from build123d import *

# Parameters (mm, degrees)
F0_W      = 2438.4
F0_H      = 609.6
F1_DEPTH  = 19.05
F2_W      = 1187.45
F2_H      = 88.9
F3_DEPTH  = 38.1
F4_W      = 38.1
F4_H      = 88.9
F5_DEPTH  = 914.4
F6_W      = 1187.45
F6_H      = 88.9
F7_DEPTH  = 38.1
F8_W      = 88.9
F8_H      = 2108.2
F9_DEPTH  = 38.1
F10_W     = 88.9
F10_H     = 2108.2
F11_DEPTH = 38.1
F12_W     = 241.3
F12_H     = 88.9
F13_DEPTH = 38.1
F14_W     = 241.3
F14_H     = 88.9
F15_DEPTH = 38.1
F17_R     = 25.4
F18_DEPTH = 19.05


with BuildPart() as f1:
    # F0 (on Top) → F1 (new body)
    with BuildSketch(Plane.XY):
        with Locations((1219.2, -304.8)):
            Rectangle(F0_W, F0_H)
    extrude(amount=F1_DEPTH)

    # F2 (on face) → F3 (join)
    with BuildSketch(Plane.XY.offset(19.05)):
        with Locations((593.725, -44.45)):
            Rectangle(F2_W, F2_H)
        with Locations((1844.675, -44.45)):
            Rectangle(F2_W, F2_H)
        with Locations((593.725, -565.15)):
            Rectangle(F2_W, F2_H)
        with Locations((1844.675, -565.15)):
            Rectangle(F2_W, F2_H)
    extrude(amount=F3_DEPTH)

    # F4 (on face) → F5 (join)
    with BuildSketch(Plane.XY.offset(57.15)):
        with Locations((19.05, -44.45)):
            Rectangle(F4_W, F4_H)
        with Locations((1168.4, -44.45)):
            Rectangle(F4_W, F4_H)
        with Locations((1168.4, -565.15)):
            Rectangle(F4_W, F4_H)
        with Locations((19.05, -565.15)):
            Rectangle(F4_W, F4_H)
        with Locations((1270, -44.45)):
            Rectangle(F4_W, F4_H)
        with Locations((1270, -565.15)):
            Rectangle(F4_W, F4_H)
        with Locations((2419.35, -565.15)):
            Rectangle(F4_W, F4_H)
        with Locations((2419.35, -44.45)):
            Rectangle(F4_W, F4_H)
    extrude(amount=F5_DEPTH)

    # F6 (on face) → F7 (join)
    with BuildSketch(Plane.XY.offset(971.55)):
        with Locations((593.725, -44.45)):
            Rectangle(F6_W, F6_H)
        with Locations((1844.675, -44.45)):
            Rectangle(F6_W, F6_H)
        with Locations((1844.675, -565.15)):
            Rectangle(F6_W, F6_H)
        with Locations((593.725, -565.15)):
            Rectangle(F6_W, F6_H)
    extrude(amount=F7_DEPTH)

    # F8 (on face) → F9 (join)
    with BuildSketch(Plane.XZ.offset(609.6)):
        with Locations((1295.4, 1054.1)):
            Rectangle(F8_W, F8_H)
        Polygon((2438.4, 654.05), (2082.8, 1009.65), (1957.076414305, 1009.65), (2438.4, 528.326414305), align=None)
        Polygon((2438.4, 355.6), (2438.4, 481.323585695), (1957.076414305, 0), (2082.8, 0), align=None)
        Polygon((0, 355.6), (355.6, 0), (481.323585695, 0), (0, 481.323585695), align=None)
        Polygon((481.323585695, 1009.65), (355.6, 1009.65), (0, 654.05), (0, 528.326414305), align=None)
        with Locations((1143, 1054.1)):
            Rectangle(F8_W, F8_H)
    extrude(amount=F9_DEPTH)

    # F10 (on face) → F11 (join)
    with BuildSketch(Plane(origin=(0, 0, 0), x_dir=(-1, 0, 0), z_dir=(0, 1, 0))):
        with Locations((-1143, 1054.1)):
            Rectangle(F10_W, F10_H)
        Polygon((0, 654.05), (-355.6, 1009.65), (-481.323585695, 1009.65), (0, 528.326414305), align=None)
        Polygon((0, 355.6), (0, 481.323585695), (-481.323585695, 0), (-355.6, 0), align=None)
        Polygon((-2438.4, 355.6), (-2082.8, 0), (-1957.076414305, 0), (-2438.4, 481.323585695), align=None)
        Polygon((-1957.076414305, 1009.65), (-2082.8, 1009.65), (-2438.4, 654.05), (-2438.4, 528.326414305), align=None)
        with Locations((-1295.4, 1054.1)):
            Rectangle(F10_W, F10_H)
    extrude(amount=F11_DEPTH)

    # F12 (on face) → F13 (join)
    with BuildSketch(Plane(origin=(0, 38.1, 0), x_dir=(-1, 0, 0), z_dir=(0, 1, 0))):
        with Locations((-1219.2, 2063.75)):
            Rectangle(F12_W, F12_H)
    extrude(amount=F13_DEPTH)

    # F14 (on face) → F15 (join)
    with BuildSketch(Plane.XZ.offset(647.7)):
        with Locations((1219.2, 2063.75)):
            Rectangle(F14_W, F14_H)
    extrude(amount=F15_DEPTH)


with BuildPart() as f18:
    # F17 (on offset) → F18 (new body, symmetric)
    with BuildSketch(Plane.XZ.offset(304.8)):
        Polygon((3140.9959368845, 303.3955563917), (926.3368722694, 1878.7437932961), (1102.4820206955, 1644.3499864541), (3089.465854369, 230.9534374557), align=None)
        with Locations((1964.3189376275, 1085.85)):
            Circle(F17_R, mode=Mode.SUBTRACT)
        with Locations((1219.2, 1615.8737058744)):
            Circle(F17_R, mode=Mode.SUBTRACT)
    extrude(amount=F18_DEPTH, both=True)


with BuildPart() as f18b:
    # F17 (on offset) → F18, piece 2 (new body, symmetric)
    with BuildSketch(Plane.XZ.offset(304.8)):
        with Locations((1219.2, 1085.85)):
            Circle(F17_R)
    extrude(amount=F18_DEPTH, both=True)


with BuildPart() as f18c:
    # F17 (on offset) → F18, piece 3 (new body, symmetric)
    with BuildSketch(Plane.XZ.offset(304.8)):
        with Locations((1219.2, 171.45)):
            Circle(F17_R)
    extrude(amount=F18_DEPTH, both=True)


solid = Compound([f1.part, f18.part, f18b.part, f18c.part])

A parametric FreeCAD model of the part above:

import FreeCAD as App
import Part
import Sketcher

V = App.Vector
Q = App.Units.Quantity

doc = App.newDocument("Part")
params = doc.addObject("Spreadsheet::Sheet", "Params")
for row, (alias, value) in enumerate([
    ("sketch1_width", "96 in"),
    ("sketch1_height", "24 in"),
    ("pad1_length", "0.75 in"),
    ("sketch2_height", "3.5 in"),
    ("sketch2_width", "46.75 in"),
    ("pad2_length", "1.5 in"),
    ("sketch3_width", "1.5 in"),
    ("sketch3_height", "3.5 in"),
    ("pad3_length", "36 in"),
    ("sketch4_height", "3.5 in"),
    ("sketch4_width", "46.75 in"),
    ("pad4_length", "1.5 in"),
    ("sketch5_height", "83 in"),
    ("sketch5_width", "3.5 in"),
    ("pad5_length", "1.5 in"),
    ("sketch6_height", "83 in"),
    ("sketch6_width", "3.5 in"),
    ("pad6_length", "1.5 in"),
    ("sketch7_width", "9.5 in"),
    ("sketch7_height", "3.5 in"),
    ("pad7_length", "1.5 in"),
    ("sketch8_width", "9.5 in"),
    ("sketch8_height", "3.5 in"),
    ("pad8_length", "1.5 in"),
    ("sketch9_diameter", "2 in"),
    ("sketch9_length", "107 in"),
    ("sketch9_length2", "96 in"),
    ("sketch9_length3", "3.5 in"),
    ("pad9_length", "1.5 in"),
    ("sketch10_diameter", "2 in"),
    ("pad10_length", "1.5 in"),
    ("sketch11_diameter", "2 in"),
    ("pad11_length", "1.5 in"),
], start=1):
    params.set(f"A{row}", alias)
    params.set(f"B{row}", "=" + value)
    params.setAlias(f"B{row}", alias)

body = doc.addObject("PartDesign::Body", "Body")

# Sketch on XY plane
sketch1 = body.newObject("Sketcher::SketchObject", "Sketch")
sketch1.AttachmentSupport = (doc.getObject("XY_Plane"), [""])
sketch1.MapMode = "FlatFace"
sketch1.addGeometry(Part.LineSegment(V(0, 0, 0), V(0, -610, 0)), False)
sketch1.addGeometry(Part.LineSegment(V(0, -610, 0), V(2438, -610, 0)), False)
sketch1.addGeometry(Part.LineSegment(V(2438, -610, 0), V(2438, 0, 0)), False)
sketch1.addGeometry(Part.LineSegment(V(2438, 0, 0), V(0, 0, 0)), False)
sketch1.addConstraint(Sketcher.Constraint("Coincident", 0, 2, 1, 1))
sketch1.addConstraint(Sketcher.Constraint("Coincident", 1, 2, 2, 1))
sketch1.addConstraint(Sketcher.Constraint("Coincident", 2, 2, 3, 1))
sketch1.addConstraint(Sketcher.Constraint("Coincident", 3, 2, 0, 1))
sketch1.addConstraint(Sketcher.Constraint("Vertical", 0))
sketch1.addConstraint(Sketcher.Constraint("Horizontal", 1))
sketch1.addConstraint(Sketcher.Constraint("Vertical", 2))
sketch1.addConstraint(Sketcher.Constraint("Horizontal", 3))
sketch1.addConstraint(Sketcher.Constraint("Coincident", 3, 2, -1, 1))
sketch1.addConstraint(Sketcher.Constraint("DistanceX", 1, 1, 1, 2, Q("96 in")))
sketch1.addConstraint(Sketcher.Constraint("DistanceY", 0, 2, 0, 1, Q("24 in")))
sketch1.setExpression("Constraints[9]", "Params.sketch1_width")
sketch1.setExpression("Constraints[10]", "Params.sketch1_height")
pad1 = body.newObject("PartDesign::Pad", "Pad")
pad1.Profile = sketch1
pad1.setExpression("Length", "Params.pad1_length")

# Sketch on XY plane
sketch2 = body.newObject("Sketcher::SketchObject", "Sketch001")
sketch2.AttachmentSupport = (doc.getObject("XY_Plane"), [""])
sketch2.MapMode = "FlatFace"
sketch2.AttachmentOffset = App.Placement(V(0, 0, 0.75 * 25.4), App.Rotation())
sketch2.addGeometry(Part.LineSegment(V(0, 0, 0), V(0, -89, 0)), False)
sketch2.addGeometry(Part.LineSegment(V(0, -89, 0), V(1187, -89, 0)), False)
sketch2.addGeometry(Part.LineSegment(V(1187, -89, 0), V(1187, 0, 0)), False)
sketch2.addGeometry(Part.LineSegment(V(1187, 0, 0), V(0, 0, 0)), False)
sketch2.addGeometry(Part.LineSegment(V(1251, 0, 0), V(1251, -89, 0)), False)
sketch2.addGeometry(Part.LineSegment(V(1251, -89, 0), V(2438, -89, 0)), False)
sketch2.addGeometry(Part.LineSegment(V(2438, -89, 0), V(2438, 0, 0)), False)
sketch2.addGeometry(Part.LineSegment(V(2438, 0, 0), V(1251, 0, 0)), False)
sketch2.addGeometry(Part.LineSegment(V(0, -521, 0), V(0, -610, 0)), False)
sketch2.addGeometry(Part.LineSegment(V(0, -610, 0), V(1187, -610, 0)), False)
sketch2.addGeometry(Part.LineSegment(V(1187, -610, 0), V(1187, -521, 0)), False)
sketch2.addGeometry(Part.LineSegment(V(1187, -521, 0), V(0, -521, 0)), False)
sketch2.addGeometry(Part.LineSegment(V(1251, -521, 0), V(1251, -610, 0)), False)
sketch2.addGeometry(Part.LineSegment(V(1251, -610, 0), V(2438, -610, 0)), False)
sketch2.addGeometry(Part.LineSegment(V(2438, -610, 0), V(2438, -521, 0)), False)
sketch2.addGeometry(Part.LineSegment(V(2438, -521, 0), V(1251, -521, 0)), False)
sketch2.addConstraint(Sketcher.Constraint("Coincident", 0, 2, 1, 1))
sketch2.addConstraint(Sketcher.Constraint("Coincident", 1, 2, 2, 1))
sketch2.addConstraint(Sketcher.Constraint("Coincident", 2, 2, 3, 1))
sketch2.addConstraint(Sketcher.Constraint("Coincident", 3, 2, 0, 1))
sketch2.addConstraint(Sketcher.Constraint("Coincident", 4, 2, 5, 1))
sketch2.addConstraint(Sketcher.Constraint("Coincident", 5, 2, 6, 1))
sketch2.addConstraint(Sketcher.Constraint("Coincident", 6, 2, 7, 1))
sketch2.addConstraint(Sketcher.Constraint("Coincident", 7, 2, 4, 1))
sketch2.addConstraint(Sketcher.Constraint("Coincident", 8, 2, 9, 1))
sketch2.addConstraint(Sketcher.Constraint("Coincident", 9, 2, 10, 1))
sketch2.addConstraint(Sketcher.Constraint("Coincident", 10, 2, 11, 1))
sketch2.addConstraint(Sketcher.Constraint("Coincident", 11, 2, 8, 1))
sketch2.addConstraint(Sketcher.Constraint("Coincident", 12, 2, 13, 1))
sketch2.addConstraint(Sketcher.Constraint("Coincident", 13, 2, 14, 1))
sketch2.addConstraint(Sketcher.Constraint("Coincident", 14, 2, 15, 1))
sketch2.addConstraint(Sketcher.Constraint("Coincident", 15, 2, 12, 1))
sketch2.addConstraint(Sketcher.Constraint("Vertical", 0))
sketch2.addConstraint(Sketcher.Constraint("Horizontal", 1))
sketch2.addConstraint(Sketcher.Constraint("Vertical", 2))
sketch2.addConstraint(Sketcher.Constraint("Horizontal", 3))
sketch2.addConstraint(Sketcher.Constraint("Vertical", 4))
sketch2.addConstraint(Sketcher.Constraint("Horizontal", 5))
sketch2.addConstraint(Sketcher.Constraint("Vertical", 6))
sketch2.addConstraint(Sketcher.Constraint("Horizontal", 7))
sketch2.addConstraint(Sketcher.Constraint("Vertical", 8))
sketch2.addConstraint(Sketcher.Constraint("Horizontal", 9))
sketch2.addConstraint(Sketcher.Constraint("Vertical", 10))
sketch2.addConstraint(Sketcher.Constraint("Horizontal", 11))
sketch2.addConstraint(Sketcher.Constraint("Vertical", 12))
sketch2.addConstraint(Sketcher.Constraint("Horizontal", 13))
sketch2.addConstraint(Sketcher.Constraint("Vertical", 14))
sketch2.addConstraint(Sketcher.Constraint("Horizontal", 15))
sketch2.addConstraint(Sketcher.Constraint("Coincident", 3, 2, -1, 1))
sketch2.addConstraint(Sketcher.Constraint("PointOnObject", 6, 2, -1))
sketch2.addConstraint(Sketcher.Constraint("PointOnObject", 8, 2, -2))
sketch2.addConstraint(Sketcher.Constraint("Horizontal", 1, 2, 4, 2))
sketch2.addConstraint(Sketcher.Constraint("Horizontal", 9, 2, 12, 2))
sketch2.addConstraint(Sketcher.Constraint("Horizontal", 11, 2, 14, 2))
sketch2.addConstraint(Sketcher.Constraint("Vertical", 2, 2, 9, 2))
sketch2.addConstraint(Sketcher.Constraint("Vertical", 7, 2, 12, 2))
sketch2.addConstraint(Sketcher.Constraint("Vertical", 6, 2, 13, 2))
sketch2.addConstraint(Sketcher.Constraint("Equal", 3, 5))
sketch2.addConstraint(Sketcher.Constraint("Equal", 6, 8))
sketch2.addConstraint(Sketcher.Constraint("DistanceY", 0, 2, 0, 1, Q("3.5 in")))
sketch2.addConstraint(Sketcher.Constraint("DistanceX", -1, 1, 5, 2, Q("96 in")))
sketch2.addConstraint(Sketcher.Constraint("DistanceY", 8, 2, -1, 1, Q("24 in")))
sketch2.addConstraint(Sketcher.Constraint("DistanceX", 1, 1, 1, 2, Q("46.75 in")))
sketch2.setExpression("Constraints[43]", "Params.sketch2_height")
sketch2.setExpression("Constraints[46]", "Params.sketch2_width")
pad2 = body.newObject("PartDesign::Pad", "Pad001")
pad2.Profile = sketch2
pad2.setExpression("Length", "Params.pad2_length")

# Sketch on XY plane
sketch3 = body.newObject("Sketcher::SketchObject", "Sketch002")
sketch3.AttachmentSupport = (doc.getObject("XY_Plane"), [""])
sketch3.MapMode = "FlatFace"
sketch3.AttachmentOffset = App.Placement(V(0, 0, 2.25 * 25.4), App.Rotation())
sketch3.addGeometry(Part.LineSegment(V(0, 0, 0), V(0, -89, 0)), False)
sketch3.addGeometry(Part.LineSegment(V(0, -89, 0), V(38, -89, 0)), False)
sketch3.addGeometry(Part.LineSegment(V(38, -89, 0), V(38, 0, 0)), False)
sketch3.addGeometry(Part.LineSegment(V(38, 0, 0), V(0, 0, 0)), False)
sketch3.addGeometry(Part.LineSegment(V(1149, 0, 0), V(1149, -89, 0)), False)
sketch3.addGeometry(Part.LineSegment(V(1149, -89, 0), V(1187, -89, 0)), False)
sketch3.addGeometry(Part.LineSegment(V(1187, -89, 0), V(1187, 0, 0)), False)
sketch3.addGeometry(Part.LineSegment(V(1187, 0, 0), V(1149, 0, 0)), False)
sketch3.addGeometry(Part.LineSegment(V(1149, -521, 0), V(1149, -610, 0)), False)
sketch3.addGeometry(Part.LineSegment(V(1149, -610, 0), V(1187, -610, 0)), False)
sketch3.addGeometry(Part.LineSegment(V(1187, -610, 0), V(1187, -521, 0)), False)
sketch3.addGeometry(Part.LineSegment(V(1187, -521, 0), V(1149, -521, 0)), False)
sketch3.addGeometry(Part.LineSegment(V(0, -521, 0), V(0, -610, 0)), False)
sketch3.addGeometry(Part.LineSegment(V(0, -610, 0), V(38, -610, 0)), False)
sketch3.addGeometry(Part.LineSegment(V(38, -610, 0), V(38, -521, 0)), False)
sketch3.addGeometry(Part.LineSegment(V(38, -521, 0), V(0, -521, 0)), False)
sketch3.addGeometry(Part.LineSegment(V(1251, 0, 0), V(1251, -89, 0)), False)
sketch3.addGeometry(Part.LineSegment(V(1251, -89, 0), V(1289, -89, 0)), False)
sketch3.addGeometry(Part.LineSegment(V(1289, -89, 0), V(1289, 0, 0)), False)
sketch3.addGeometry(Part.LineSegment(V(1289, 0, 0), V(1251, 0, 0)), False)
sketch3.addGeometry(Part.LineSegment(V(1251, -521, 0), V(1251, -610, 0)), False)
sketch3.addGeometry(Part.LineSegment(V(1251, -610, 0), V(1289, -610, 0)), False)
sketch3.addGeometry(Part.LineSegment(V(1289, -610, 0), V(1289, -521, 0)), False)
sketch3.addGeometry(Part.LineSegment(V(1289, -521, 0), V(1251, -521, 0)), False)
sketch3.addGeometry(Part.LineSegment(V(2400, -521, 0), V(2400, -610, 0)), False)
sketch3.addGeometry(Part.LineSegment(V(2400, -610, 0), V(2438, -610, 0)), False)
sketch3.addGeometry(Part.LineSegment(V(2438, -610, 0), V(2438, -521, 0)), False)
sketch3.addGeometry(Part.LineSegment(V(2438, -521, 0), V(2400, -521, 0)), False)
sketch3.addGeometry(Part.LineSegment(V(2400, 0, 0), V(2400, -89, 0)), False)
sketch3.addGeometry(Part.LineSegment(V(2400, -89, 0), V(2438, -89, 0)), False)
sketch3.addGeometry(Part.LineSegment(V(2438, -89, 0), V(2438, 0, 0)), False)
sketch3.addGeometry(Part.LineSegment(V(2438, 0, 0), V(2400, 0, 0)), False)
sketch3.addConstraint(Sketcher.Constraint("Coincident", 0, 2, 1, 1))
sketch3.addConstraint(Sketcher.Constraint("Coincident", 1, 2, 2, 1))
sketch3.addConstraint(Sketcher.Constraint("Coincident", 2, 2, 3, 1))
sketch3.addConstraint(Sketcher.Constraint("Coincident", 3, 2, 0, 1))
sketch3.addConstraint(Sketcher.Constraint("Coincident", 4, 2, 5, 1))
sketch3.addConstraint(Sketcher.Constraint("Coincident", 5, 2, 6, 1))
sketch3.addConstraint(Sketcher.Constraint("Coincident", 6, 2, 7, 1))
sketch3.addConstraint(Sketcher.Constraint("Coincident", 7, 2, 4, 1))
sketch3.addConstraint(Sketcher.Constraint("Coincident", 8, 2, 9, 1))
sketch3.addConstraint(Sketcher.Constraint("Coincident", 9, 2, 10, 1))
sketch3.addConstraint(Sketcher.Constraint("Coincident", 10, 2, 11, 1))
sketch3.addConstraint(Sketcher.Constraint("Coincident", 11, 2, 8, 1))
sketch3.addConstraint(Sketcher.Constraint("Coincident", 12, 2, 13, 1))
sketch3.addConstraint(Sketcher.Constraint("Coincident", 13, 2, 14, 1))
sketch3.addConstraint(Sketcher.Constraint("Coincident", 14, 2, 15, 1))
sketch3.addConstraint(Sketcher.Constraint("Coincident", 15, 2, 12, 1))
sketch3.addConstraint(Sketcher.Constraint("Coincident", 16, 2, 17, 1))
sketch3.addConstraint(Sketcher.Constraint("Coincident", 17, 2, 18, 1))
sketch3.addConstraint(Sketcher.Constraint("Coincident", 18, 2, 19, 1))
sketch3.addConstraint(Sketcher.Constraint("Coincident", 19, 2, 16, 1))
sketch3.addConstraint(Sketcher.Constraint("Coincident", 20, 2, 21, 1))
sketch3.addConstraint(Sketcher.Constraint("Coincident", 21, 2, 22, 1))
sketch3.addConstraint(Sketcher.Constraint("Coincident", 22, 2, 23, 1))
sketch3.addConstraint(Sketcher.Constraint("Coincident", 23, 2, 20, 1))
sketch3.addConstraint(Sketcher.Constraint("Coincident", 24, 2, 25, 1))
sketch3.addConstraint(Sketcher.Constraint("Coincident", 25, 2, 26, 1))
sketch3.addConstraint(Sketcher.Constraint("Coincident", 26, 2, 27, 1))
sketch3.addConstraint(Sketcher.Constraint("Coincident", 27, 2, 24, 1))
sketch3.addConstraint(Sketcher.Constraint("Coincident", 28, 2, 29, 1))
sketch3.addConstraint(Sketcher.Constraint("Coincident", 29, 2, 30, 1))
sketch3.addConstraint(Sketcher.Constraint("Coincident", 30, 2, 31, 1))
sketch3.addConstraint(Sketcher.Constraint("Coincident", 31, 2, 28, 1))
sketch3.addConstraint(Sketcher.Constraint("Vertical", 0))
sketch3.addConstraint(Sketcher.Constraint("Horizontal", 1))
sketch3.addConstraint(Sketcher.Constraint("Vertical", 2))
sketch3.addConstraint(Sketcher.Constraint("Horizontal", 3))
sketch3.addConstraint(Sketcher.Constraint("Vertical", 4))
sketch3.addConstraint(Sketcher.Constraint("Horizontal", 5))
sketch3.addConstraint(Sketcher.Constraint("Vertical", 6))
sketch3.addConstraint(Sketcher.Constraint("Horizontal", 7))
sketch3.addConstraint(Sketcher.Constraint("Vertical", 8))
sketch3.addConstraint(Sketcher.Constraint("Horizontal", 9))
sketch3.addConstraint(Sketcher.Constraint("Vertical", 10))
sketch3.addConstraint(Sketcher.Constraint("Horizontal", 11))
sketch3.addConstraint(Sketcher.Constraint("Vertical", 12))
sketch3.addConstraint(Sketcher.Constraint("Horizontal", 13))
sketch3.addConstraint(Sketcher.Constraint("Vertical", 14))
sketch3.addConstraint(Sketcher.Constraint("Horizontal", 15))
sketch3.addConstraint(Sketcher.Constraint("Vertical", 16))
sketch3.addConstraint(Sketcher.Constraint("Horizontal", 17))
sketch3.addConstraint(Sketcher.Constraint("Vertical", 18))
sketch3.addConstraint(Sketcher.Constraint("Horizontal", 19))
sketch3.addConstraint(Sketcher.Constraint("Vertical", 20))
sketch3.addConstraint(Sketcher.Constraint("Horizontal", 21))
sketch3.addConstraint(Sketcher.Constraint("Vertical", 22))
sketch3.addConstraint(Sketcher.Constraint("Horizontal", 23))
sketch3.addConstraint(Sketcher.Constraint("Vertical", 24))
sketch3.addConstraint(Sketcher.Constraint("Horizontal", 25))
sketch3.addConstraint(Sketcher.Constraint("Vertical", 26))
sketch3.addConstraint(Sketcher.Constraint("Horizontal", 27))
sketch3.addConstraint(Sketcher.Constraint("Vertical", 28))
sketch3.addConstraint(Sketcher.Constraint("Horizontal", 29))
sketch3.addConstraint(Sketcher.Constraint("Vertical", 30))
sketch3.addConstraint(Sketcher.Constraint("Horizontal", 31))
sketch3.addConstraint(Sketcher.Constraint("Coincident", 3, 2, -1, 1))
sketch3.addConstraint(Sketcher.Constraint("PointOnObject", 6, 2, -1))
sketch3.addConstraint(Sketcher.Constraint("PointOnObject", 12, 2, -2))
sketch3.addConstraint(Sketcher.Constraint("PointOnObject", 18, 2, -1))
sketch3.addConstraint(Sketcher.Constraint("PointOnObject", 30, 2, -1))
sketch3.addConstraint(Sketcher.Constraint("Horizontal", 1, 2, 4, 2))
sketch3.addConstraint(Sketcher.Constraint("Horizontal", 9, 2, 12, 2))
sketch3.addConstraint(Sketcher.Constraint("Horizontal", 11, 2, 14, 2))
sketch3.addConstraint(Sketcher.Constraint("Horizontal", 5, 2, 16, 2))
sketch3.addConstraint(Sketcher.Constraint("Horizontal", 13, 2, 20, 2))
sketch3.addConstraint(Sketcher.Constraint("Horizontal", 15, 2, 22, 2))
sketch3.addConstraint(Sketcher.Constraint("Horizontal", 21, 2, 24, 2))
sketch3.addConstraint(Sketcher.Constraint("Horizontal", 23, 2, 26, 2))
sketch3.addConstraint(Sketcher.Constraint("Horizontal", 17, 2, 28, 2))
sketch3.addConstraint(Sketcher.Constraint("Vertical", 7, 2, 8, 2))
sketch3.addConstraint(Sketcher.Constraint("Vertical", 6, 2, 9, 2))
sketch3.addConstraint(Sketcher.Constraint("Vertical", 2, 2, 13, 2))
sketch3.addConstraint(Sketcher.Constraint("Vertical", 19, 2, 20, 2))
sketch3.addConstraint(Sketcher.Constraint("Vertical", 18, 2, 21, 2))
sketch3.addConstraint(Sketcher.Constraint("Vertical", 27, 2, 28, 2))
sketch3.addConstraint(Sketcher.Constraint("Vertical", 26, 2, 29, 2))
sketch3.addConstraint(Sketcher.Constraint("Equal", 3, 5))
sketch3.addConstraint(Sketcher.Constraint("Equal", 15, 17))
sketch3.addConstraint(Sketcher.Constraint("Equal", 23, 25))
sketch3.addConstraint(Sketcher.Constraint("Equal", 6, 8))
sketch3.addConstraint(Sketcher.Constraint("DistanceX", 1, 1, 1, 2, Q("1.5 in")))
sketch3.addConstraint(Sketcher.Constraint("DistanceY", 0, 2, 0, 1, Q("3.5 in")))
sketch3.addConstraint(Sketcher.Constraint("DistanceY", 8, 2, -1, 1, Q("24 in")))
sketch3.addConstraint(Sketcher.Constraint("DistanceX", -1, 1, 25, 2, Q("96 in")))
sketch3.addConstraint(Sketcher.Constraint("DistanceX", 4, 2, 16, 2, Q("4 in")))
sketch3.addConstraint(Sketcher.Constraint("DistanceX", -1, 1, 4, 2, Q("45.25 in")))
sketch3.setExpression("Constraints[89]", "Params.sketch3_width")
sketch3.setExpression("Constraints[90]", "Params.sketch3_height")
pad3 = body.newObject("PartDesign::Pad", "Pad002")
pad3.Profile = sketch3
pad3.setExpression("Length", "Params.pad3_length")

# Sketch on XY plane
sketch4 = body.newObject("Sketcher::SketchObject", "Sketch003")
sketch4.AttachmentSupport = (doc.getObject("XY_Plane"), [""])
sketch4.MapMode = "FlatFace"
sketch4.AttachmentOffset = App.Placement(V(0, 0, 38.25 * 25.4), App.Rotation())
sketch4.addGeometry(Part.LineSegment(V(0, 0, 0), V(0, -89, 0)), False)
sketch4.addGeometry(Part.LineSegment(V(0, -89, 0), V(1187, -89, 0)), False)
sketch4.addGeometry(Part.LineSegment(V(1187, -89, 0), V(1187, 0, 0)), False)
sketch4.addGeometry(Part.LineSegment(V(1187, 0, 0), V(0, 0, 0)), False)
sketch4.addGeometry(Part.LineSegment(V(1251, 0, 0), V(1251, -89, 0)), False)
sketch4.addGeometry(Part.LineSegment(V(1251, -89, 0), V(2438, -89, 0)), False)
sketch4.addGeometry(Part.LineSegment(V(2438, -89, 0), V(2438, 0, 0)), False)
sketch4.addGeometry(Part.LineSegment(V(2438, 0, 0), V(1251, 0, 0)), False)
sketch4.addGeometry(Part.LineSegment(V(1251, -521, 0), V(1251, -610, 0)), False)
sketch4.addGeometry(Part.LineSegment(V(1251, -610, 0), V(2438, -610, 0)), False)
sketch4.addGeometry(Part.LineSegment(V(2438, -610, 0), V(2438, -521, 0)), False)
sketch4.addGeometry(Part.LineSegment(V(2438, -521, 0), V(1251, -521, 0)), False)
sketch4.addGeometry(Part.LineSegment(V(0, -521, 0), V(0, -610, 0)), False)
sketch4.addGeometry(Part.LineSegment(V(0, -610, 0), V(1187, -610, 0)), False)
sketch4.addGeometry(Part.LineSegment(V(1187, -610, 0), V(1187, -521, 0)), False)
sketch4.addGeometry(Part.LineSegment(V(1187, -521, 0), V(0, -521, 0)), False)
sketch4.addConstraint(Sketcher.Constraint("Coincident", 0, 2, 1, 1))
sketch4.addConstraint(Sketcher.Constraint("Coincident", 1, 2, 2, 1))
sketch4.addConstraint(Sketcher.Constraint("Coincident", 2, 2, 3, 1))
sketch4.addConstraint(Sketcher.Constraint("Coincident", 3, 2, 0, 1))
sketch4.addConstraint(Sketcher.Constraint("Coincident", 4, 2, 5, 1))
sketch4.addConstraint(Sketcher.Constraint("Coincident", 5, 2, 6, 1))
sketch4.addConstraint(Sketcher.Constraint("Coincident", 6, 2, 7, 1))
sketch4.addConstraint(Sketcher.Constraint("Coincident", 7, 2, 4, 1))
sketch4.addConstraint(Sketcher.Constraint("Coincident", 8, 2, 9, 1))
sketch4.addConstraint(Sketcher.Constraint("Coincident", 9, 2, 10, 1))
sketch4.addConstraint(Sketcher.Constraint("Coincident", 10, 2, 11, 1))
sketch4.addConstraint(Sketcher.Constraint("Coincident", 11, 2, 8, 1))
sketch4.addConstraint(Sketcher.Constraint("Coincident", 12, 2, 13, 1))
sketch4.addConstraint(Sketcher.Constraint("Coincident", 13, 2, 14, 1))
sketch4.addConstraint(Sketcher.Constraint("Coincident", 14, 2, 15, 1))
sketch4.addConstraint(Sketcher.Constraint("Coincident", 15, 2, 12, 1))
sketch4.addConstraint(Sketcher.Constraint("Vertical", 0))
sketch4.addConstraint(Sketcher.Constraint("Horizontal", 1))
sketch4.addConstraint(Sketcher.Constraint("Vertical", 2))
sketch4.addConstraint(Sketcher.Constraint("Horizontal", 3))
sketch4.addConstraint(Sketcher.Constraint("Vertical", 4))
sketch4.addConstraint(Sketcher.Constraint("Horizontal", 5))
sketch4.addConstraint(Sketcher.Constraint("Vertical", 6))
sketch4.addConstraint(Sketcher.Constraint("Horizontal", 7))
sketch4.addConstraint(Sketcher.Constraint("Vertical", 8))
sketch4.addConstraint(Sketcher.Constraint("Horizontal", 9))
sketch4.addConstraint(Sketcher.Constraint("Vertical", 10))
sketch4.addConstraint(Sketcher.Constraint("Horizontal", 11))
sketch4.addConstraint(Sketcher.Constraint("Vertical", 12))
sketch4.addConstraint(Sketcher.Constraint("Horizontal", 13))
sketch4.addConstraint(Sketcher.Constraint("Vertical", 14))
sketch4.addConstraint(Sketcher.Constraint("Horizontal", 15))
sketch4.addConstraint(Sketcher.Constraint("Coincident", 3, 2, -1, 1))
sketch4.addConstraint(Sketcher.Constraint("PointOnObject", 6, 2, -1))
sketch4.addConstraint(Sketcher.Constraint("PointOnObject", 12, 2, -2))
sketch4.addConstraint(Sketcher.Constraint("Horizontal", 1, 2, 4, 2))
sketch4.addConstraint(Sketcher.Constraint("Horizontal", 9, 2, 12, 2))
sketch4.addConstraint(Sketcher.Constraint("Horizontal", 11, 2, 14, 2))
sketch4.addConstraint(Sketcher.Constraint("Vertical", 7, 2, 8, 2))
sketch4.addConstraint(Sketcher.Constraint("Vertical", 6, 2, 9, 2))
sketch4.addConstraint(Sketcher.Constraint("Vertical", 2, 2, 13, 2))
sketch4.addConstraint(Sketcher.Constraint("Equal", 3, 5))
sketch4.addConstraint(Sketcher.Constraint("Equal", 6, 8))
sketch4.addConstraint(Sketcher.Constraint("DistanceY", 0, 2, 0, 1, Q("3.5 in")))
sketch4.addConstraint(Sketcher.Constraint("DistanceX", -1, 1, 5, 2, Q("96 in")))
sketch4.addConstraint(Sketcher.Constraint("DistanceY", 8, 2, -1, 1, Q("24 in")))
sketch4.addConstraint(Sketcher.Constraint("DistanceX", 1, 1, 1, 2, Q("46.75 in")))
sketch4.setExpression("Constraints[43]", "Params.sketch4_height")
sketch4.setExpression("Constraints[46]", "Params.sketch4_width")
pad4 = body.newObject("PartDesign::Pad", "Pad003")
pad4.Profile = sketch4
pad4.setExpression("Length", "Params.pad4_length")

# Sketch on XZ plane
sketch5 = body.newObject("Sketcher::SketchObject", "Sketch004")
sketch5.AttachmentSupport = (doc.getObject("XZ_Plane"), [""])
sketch5.MapMode = "FlatFace"
sketch5.AttachmentOffset = App.Placement(V(0, 0, 24 * 25.4), App.Rotation())
sketch5.addGeometry(Part.LineSegment(V(1251, 2108, 0), V(1251, 0, 0)), False)
sketch5.addGeometry(Part.LineSegment(V(1251, 0, 0), V(1340, 0, 0)), False)
sketch5.addGeometry(Part.LineSegment(V(1340, 0, 0), V(1340, 2108, 0)), False)
sketch5.addGeometry(Part.LineSegment(V(1340, 2108, 0), V(1251, 2108, 0)), False)
sketch5.addGeometry(Part.LineSegment(V(2438, 654, 0), V(2083, 1010, 0)), False)
sketch5.addGeometry(Part.LineSegment(V(2083, 1010, 0), V(1957, 1010, 0)), False)
sketch5.addGeometry(Part.LineSegment(V(1957, 1010, 0), V(2438, 528, 0)), False)
sketch5.addGeometry(Part.LineSegment(V(2438, 528, 0), V(2438, 654, 0)), False)
sketch5.addGeometry(Part.LineSegment(V(2438, 356, 0), V(2438, 481, 0)), False)
sketch5.addGeometry(Part.LineSegment(V(2438, 481, 0), V(1957, 0, 0)), False)
sketch5.addGeometry(Part.LineSegment(V(1957, 0, 0), V(2083, 0, 0)), False)
sketch5.addGeometry(Part.LineSegment(V(2083, 0, 0), V(2438, 356, 0)), False)
sketch5.addGeometry(Part.LineSegment(V(0, 356, 0), V(356, 0, 0)), False)
sketch5.addGeometry(Part.LineSegment(V(356, 0, 0), V(481, 0, 0)), False)
sketch5.addGeometry(Part.LineSegment(V(481, 0, 0), V(0, 481, 0)), False)
sketch5.addGeometry(Part.LineSegment(V(0, 481, 0), V(0, 356, 0)), False)
sketch5.addGeometry(Part.LineSegment(V(481, 1010, 0), V(356, 1010, 0)), False)
sketch5.addGeometry(Part.LineSegment(V(356, 1010, 0), V(0, 654, 0)), False)
sketch5.addGeometry(Part.LineSegment(V(0, 654, 0), V(0, 528, 0)), False)
sketch5.addGeometry(Part.LineSegment(V(0, 528, 0), V(481, 1010, 0)), False)
sketch5.addGeometry(Part.LineSegment(V(1099, 2108, 0), V(1099, 0, 0)), False)
sketch5.addGeometry(Part.LineSegment(V(1099, 0, 0), V(1187, 0, 0)), False)
sketch5.addGeometry(Part.LineSegment(V(1187, 0, 0), V(1187, 2108, 0)), False)
sketch5.addGeometry(Part.LineSegment(V(1187, 2108, 0), V(1099, 2108, 0)), False)
sketch5.addConstraint(Sketcher.Constraint("Coincident", 0, 2, 1, 1))
sketch5.addConstraint(Sketcher.Constraint("Coincident", 1, 2, 2, 1))
sketch5.addConstraint(Sketcher.Constraint("Coincident", 2, 2, 3, 1))
sketch5.addConstraint(Sketcher.Constraint("Coincident", 3, 2, 0, 1))
sketch5.addConstraint(Sketcher.Constraint("Coincident", 4, 2, 5, 1))
sketch5.addConstraint(Sketcher.Constraint("Coincident", 5, 2, 6, 1))
sketch5.addConstraint(Sketcher.Constraint("Coincident", 6, 2, 7, 1))
sketch5.addConstraint(Sketcher.Constraint("Coincident", 7, 2, 4, 1))
sketch5.addConstraint(Sketcher.Constraint("Coincident", 8, 2, 9, 1))
sketch5.addConstraint(Sketcher.Constraint("Coincident", 9, 2, 10, 1))
sketch5.addConstraint(Sketcher.Constraint("Coincident", 10, 2, 11, 1))
sketch5.addConstraint(Sketcher.Constraint("Coincident", 11, 2, 8, 1))
sketch5.addConstraint(Sketcher.Constraint("Coincident", 12, 2, 13, 1))
sketch5.addConstraint(Sketcher.Constraint("Coincident", 13, 2, 14, 1))
sketch5.addConstraint(Sketcher.Constraint("Coincident", 14, 2, 15, 1))
sketch5.addConstraint(Sketcher.Constraint("Coincident", 15, 2, 12, 1))
sketch5.addConstraint(Sketcher.Constraint("Coincident", 16, 2, 17, 1))
sketch5.addConstraint(Sketcher.Constraint("Coincident", 17, 2, 18, 1))
sketch5.addConstraint(Sketcher.Constraint("Coincident", 18, 2, 19, 1))
sketch5.addConstraint(Sketcher.Constraint("Coincident", 19, 2, 16, 1))
sketch5.addConstraint(Sketcher.Constraint("Coincident", 20, 2, 21, 1))
sketch5.addConstraint(Sketcher.Constraint("Coincident", 21, 2, 22, 1))
sketch5.addConstraint(Sketcher.Constraint("Coincident", 22, 2, 23, 1))
sketch5.addConstraint(Sketcher.Constraint("Coincident", 23, 2, 20, 1))
sketch5.addConstraint(Sketcher.Constraint("Vertical", 0))
sketch5.addConstraint(Sketcher.Constraint("Horizontal", 1))
sketch5.addConstraint(Sketcher.Constraint("Vertical", 2))
sketch5.addConstraint(Sketcher.Constraint("Horizontal", 3))
sketch5.addConstraint(Sketcher.Constraint("Horizontal", 5))
sketch5.addConstraint(Sketcher.Constraint("Vertical", 7))
sketch5.addConstraint(Sketcher.Constraint("Vertical", 8))
sketch5.addConstraint(Sketcher.Constraint("Horizontal", 10))
sketch5.addConstraint(Sketcher.Constraint("Horizontal", 13))
sketch5.addConstraint(Sketcher.Constraint("Vertical", 15))
sketch5.addConstraint(Sketcher.Constraint("Horizontal", 16))
sketch5.addConstraint(Sketcher.Constraint("Vertical", 18))
sketch5.addConstraint(Sketcher.Constraint("Vertical", 20))
sketch5.addConstraint(Sketcher.Constraint("Horizontal", 21))
sketch5.addConstraint(Sketcher.Constraint("Vertical", 22))
sketch5.addConstraint(Sketcher.Constraint("Horizontal", 23))
sketch5.addConstraint(Sketcher.Constraint("PointOnObject", 0, 2, -1))
sketch5.addConstraint(Sketcher.Constraint("PointOnObject", 9, 2, -1))
sketch5.addConstraint(Sketcher.Constraint("PointOnObject", 12, 2, -1))
sketch5.addConstraint(Sketcher.Constraint("PointOnObject", 14, 2, -2))
sketch5.addConstraint(Sketcher.Constraint("PointOnObject", 17, 2, -2))
sketch5.addConstraint(Sketcher.Constraint("PointOnObject", 20, 2, -1))
sketch5.addConstraint(Sketcher.Constraint("Parallel", 4, 6))
sketch5.addConstraint(Sketcher.Constraint("Perpendicular", 6, 9))
sketch5.addConstraint(Sketcher.Constraint("Parallel", 9, 11))
sketch5.addConstraint(Sketcher.Constraint("Perpendicular", 11, 12))
sketch5.addConstraint(Sketcher.Constraint("Parallel", 12, 14))
sketch5.addConstraint(Sketcher.Constraint("Perpendicular", 14, 17))
sketch5.addConstraint(Sketcher.Constraint("Parallel", 17, 19))
sketch5.addConstraint(Sketcher.Constraint("Horizontal", 8, 2, 14, 2))
sketch5.addConstraint(Sketcher.Constraint("Horizontal", 11, 2, 15, 2))
sketch5.addConstraint(Sketcher.Constraint("Horizontal", 5, 2, 16, 2))
sketch5.addConstraint(Sketcher.Constraint("Horizontal", 7, 2, 17, 2))
sketch5.addConstraint(Sketcher.Constraint("Horizontal", 6, 2, 18, 2))
sketch5.addConstraint(Sketcher.Constraint("Horizontal", 3, 2, 22, 2))
sketch5.addConstraint(Sketcher.Constraint("Vertical", 7, 2, 8, 2))
sketch5.addConstraint(Sketcher.Constraint("Vertical", 5, 2, 9, 2))
sketch5.addConstraint(Sketcher.Constraint("Vertical", 4, 2, 10, 2))
sketch5.addConstraint(Sketcher.Constraint("Vertical", 12, 2, 16, 2))
sketch5.addConstraint(Sketcher.Constraint("Equal", 3, 21))
sketch5.addConstraint(Sketcher.Constraint("DistanceY", 0, 2, 0, 1, Q("83 in")))
sketch5.addConstraint(Sketcher.Constraint("DistanceX", 1, 1, 1, 2, Q("3.5 in")))
sketch5.addConstraint(Sketcher.Constraint("DistanceX", -1, 1, 4, 2, Q("82 in")))
sketch5.addConstraint(Sketcher.Constraint("DistanceX", -1, 1, 6, 2, Q("96 in")))
sketch5.addConstraint(Sketcher.Constraint("DistanceX", 20, 2, 0, 2, Q("6 in")))
sketch5.addConstraint(Sketcher.Constraint("DistanceX", -1, 1, 0, 2, Q("49.25 in")))
sketch5.addConstraint(Sketcher.Constraint("DistanceY", -1, 1, 4, 2, Q("39.75 in")))
sketch5.addConstraint(Sketcher.Constraint("DistanceX", 5, 2, 5, 1, 125.723586))
sketch5.setExpression("Constraints[64]", "Params.sketch5_height")
sketch5.setExpression("Constraints[65]", "Params.sketch5_width")
pad5 = body.newObject("PartDesign::Pad", "Pad004")
pad5.Profile = sketch5
pad5.setExpression("Length", "Params.pad5_length")

# Sketch on XZ plane
sketch6 = body.newObject("Sketcher::SketchObject", "Sketch005")
sketch6.AttachmentSupport = (doc.getObject("XZ_Plane"), [""])
sketch6.MapMode = "FlatFace"
sketch6.addGeometry(Part.LineSegment(V(1187, 2108, 0), V(1187, 0, 0)), False)
sketch6.addGeometry(Part.LineSegment(V(1187, 0, 0), V(1099, 0, 0)), False)
sketch6.addGeometry(Part.LineSegment(V(1099, 0, 0), V(1099, 2108, 0)), False)
sketch6.addGeometry(Part.LineSegment(V(1099, 2108, 0), V(1187, 2108, 0)), False)
sketch6.addGeometry(Part.LineSegment(V(0, 654, 0), V(356, 1010, 0)), False)
sketch6.addGeometry(Part.LineSegment(V(356, 1010, 0), V(481, 1010, 0)), False)
sketch6.addGeometry(Part.LineSegment(V(481, 1010, 0), V(0, 528, 0)), False)
sketch6.addGeometry(Part.LineSegment(V(0, 528, 0), V(0, 654, 0)), False)
sketch6.addGeometry(Part.LineSegment(V(0, 356, 0), V(0, 481, 0)), False)
sketch6.addGeometry(Part.LineSegment(V(0, 481, 0), V(481, 0, 0)), False)
sketch6.addGeometry(Part.LineSegment(V(481, 0, 0), V(356, 0, 0)), False)
sketch6.addGeometry(Part.LineSegment(V(356, 0, 0), V(0, 356, 0)), False)
sketch6.addGeometry(Part.LineSegment(V(2438, 356, 0), V(2083, 0, 0)), False)
sketch6.addGeometry(Part.LineSegment(V(2083, 0, 0), V(1957, 0, 0)), False)
sketch6.addGeometry(Part.LineSegment(V(1957, 0, 0), V(2438, 481, 0)), False)
sketch6.addGeometry(Part.LineSegment(V(2438, 481, 0), V(2438, 356, 0)), False)
sketch6.addGeometry(Part.LineSegment(V(1957, 1010, 0), V(2083, 1010, 0)), False)
sketch6.addGeometry(Part.LineSegment(V(2083, 1010, 0), V(2438, 654, 0)), False)
sketch6.addGeometry(Part.LineSegment(V(2438, 654, 0), V(2438, 528, 0)), False)
sketch6.addGeometry(Part.LineSegment(V(2438, 528, 0), V(1957, 1010, 0)), False)
sketch6.addGeometry(Part.LineSegment(V(1340, 2108, 0), V(1340, 0, 0)), False)
sketch6.addGeometry(Part.LineSegment(V(1340, 0, 0), V(1251, 0, 0)), False)
sketch6.addGeometry(Part.LineSegment(V(1251, 0, 0), V(1251, 2108, 0)), False)
sketch6.addGeometry(Part.LineSegment(V(1251, 2108, 0), V(1340, 2108, 0)), False)
sketch6.addConstraint(Sketcher.Constraint("Coincident", 0, 2, 1, 1))
sketch6.addConstraint(Sketcher.Constraint("Coincident", 1, 2, 2, 1))
sketch6.addConstraint(Sketcher.Constraint("Coincident", 2, 2, 3, 1))
sketch6.addConstraint(Sketcher.Constraint("Coincident", 3, 2, 0, 1))
sketch6.addConstraint(Sketcher.Constraint("Coincident", 4, 2, 5, 1))
sketch6.addConstraint(Sketcher.Constraint("Coincident", 5, 2, 6, 1))
sketch6.addConstraint(Sketcher.Constraint("Coincident", 6, 2, 7, 1))
sketch6.addConstraint(Sketcher.Constraint("Coincident", 7, 2, 4, 1))
sketch6.addConstraint(Sketcher.Constraint("Coincident", 8, 2, 9, 1))
sketch6.addConstraint(Sketcher.Constraint("Coincident", 9, 2, 10, 1))
sketch6.addConstraint(Sketcher.Constraint("Coincident", 10, 2, 11, 1))
sketch6.addConstraint(Sketcher.Constraint("Coincident", 11, 2, 8, 1))
sketch6.addConstraint(Sketcher.Constraint("Coincident", 12, 2, 13, 1))
sketch6.addConstraint(Sketcher.Constraint("Coincident", 13, 2, 14, 1))
sketch6.addConstraint(Sketcher.Constraint("Coincident", 14, 2, 15, 1))
sketch6.addConstraint(Sketcher.Constraint("Coincident", 15, 2, 12, 1))
sketch6.addConstraint(Sketcher.Constraint("Coincident", 16, 2, 17, 1))
sketch6.addConstraint(Sketcher.Constraint("Coincident", 17, 2, 18, 1))
sketch6.addConstraint(Sketcher.Constraint("Coincident", 18, 2, 19, 1))
sketch6.addConstraint(Sketcher.Constraint("Coincident", 19, 2, 16, 1))
sketch6.addConstraint(Sketcher.Constraint("Coincident", 20, 2, 21, 1))
sketch6.addConstraint(Sketcher.Constraint("Coincident", 21, 2, 22, 1))
sketch6.addConstraint(Sketcher.Constraint("Coincident", 22, 2, 23, 1))
sketch6.addConstraint(Sketcher.Constraint("Coincident", 23, 2, 20, 1))
sketch6.addConstraint(Sketcher.Constraint("Vertical", 0))
sketch6.addConstraint(Sketcher.Constraint("Horizontal", 1))
sketch6.addConstraint(Sketcher.Constraint("Vertical", 2))
sketch6.addConstraint(Sketcher.Constraint("Horizontal", 3))
sketch6.addConstraint(Sketcher.Constraint("Horizontal", 5))
sketch6.addConstraint(Sketcher.Constraint("Vertical", 7))
sketch6.addConstraint(Sketcher.Constraint("Vertical", 8))
sketch6.addConstraint(Sketcher.Constraint("Horizontal", 10))
sketch6.addConstraint(Sketcher.Constraint("Horizontal", 13))
sketch6.addConstraint(Sketcher.Constraint("Vertical", 15))
sketch6.addConstraint(Sketcher.Constraint("Horizontal", 16))
sketch6.addConstraint(Sketcher.Constraint("Vertical", 18))
sketch6.addConstraint(Sketcher.Constraint("Vertical", 20))
sketch6.addConstraint(Sketcher.Constraint("Horizontal", 21))
sketch6.addConstraint(Sketcher.Constraint("Vertical", 22))
sketch6.addConstraint(Sketcher.Constraint("Horizontal", 23))
sketch6.addConstraint(Sketcher.Constraint("PointOnObject", 0, 2, -1))
sketch6.addConstraint(Sketcher.Constraint("PointOnObject", 6, 2, -2))
sketch6.addConstraint(Sketcher.Constraint("PointOnObject", 8, 2, -2))
sketch6.addConstraint(Sketcher.Constraint("PointOnObject", 9, 2, -1))
sketch6.addConstraint(Sketcher.Constraint("PointOnObject", 12, 2, -1))
sketch6.addConstraint(Sketcher.Constraint("PointOnObject", 20, 2, -1))
sketch6.addConstraint(Sketcher.Constraint("Parallel", 4, 6))
sketch6.addConstraint(Sketcher.Constraint("Perpendicular", 6, 9))
sketch6.addConstraint(Sketcher.Constraint("Parallel", 9, 11))
sketch6.addConstraint(Sketcher.Constraint("Perpendicular", 11, 12))
sketch6.addConstraint(Sketcher.Constraint("Parallel", 12, 14))
sketch6.addConstraint(Sketcher.Constraint("Perpendicular", 14, 17))
sketch6.addConstraint(Sketcher.Constraint("Parallel", 17, 19))
sketch6.addConstraint(Sketcher.Constraint("Horizontal", 8, 2, 14, 2))
sketch6.addConstraint(Sketcher.Constraint("Horizontal", 11, 2, 15, 2))
sketch6.addConstraint(Sketcher.Constraint("Horizontal", 5, 2, 16, 2))
sketch6.addConstraint(Sketcher.Constraint("Horizontal", 7, 2, 17, 2))
sketch6.addConstraint(Sketcher.Constraint("Horizontal", 6, 2, 18, 2))
sketch6.addConstraint(Sketcher.Constraint("Horizontal", 3, 2, 22, 2))
sketch6.addConstraint(Sketcher.Constraint("Vertical", 5, 2, 9, 2))
sketch6.addConstraint(Sketcher.Constraint("Vertical", 4, 2, 10, 2))
sketch6.addConstraint(Sketcher.Constraint("Vertical", 12, 2, 16, 2))
sketch6.addConstraint(Sketcher.Constraint("Vertical", 15, 2, 17, 2))
sketch6.addConstraint(Sketcher.Constraint("Equal", 3, 21))
sketch6.addConstraint(Sketcher.Constraint("DistanceY", 0, 2, 0, 1, Q("83 in")))
sketch6.addConstraint(Sketcher.Constraint("DistanceX", 1, 2, 1, 1, Q("3.5 in")))
sketch6.addConstraint(Sketcher.Constraint("DistanceX", -1, 1, 4, 2, Q("14 in")))
sketch6.addConstraint(Sketcher.Constraint("DistanceX", -1, 1, 12, 2, Q("82 in")))
sketch6.addConstraint(Sketcher.Constraint("DistanceX", 0, 2, 20, 2, Q("6 in")))
sketch6.addConstraint(Sketcher.Constraint("DistanceX", -1, 1, 0, 2, Q("46.75 in")))
sketch6.addConstraint(Sketcher.Constraint("DistanceY", -1, 1, 4, 2, Q("39.75 in")))
sketch6.addConstraint(Sketcher.Constraint("DistanceX", 5, 1, 5, 2, 125.723586))
sketch6.setExpression("Constraints[64]", "Params.sketch6_height")
sketch6.setExpression("Constraints[65]", "Params.sketch6_width")
pad6 = body.newObject("PartDesign::Pad", "Pad005")
pad6.Profile = sketch6
pad6.setExpression("Length", "Params.pad6_length")
pad6.Reversed = True

# Sketch on XZ plane
sketch7 = body.newObject("Sketcher::SketchObject", "Sketch006")
sketch7.AttachmentSupport = (doc.getObject("XZ_Plane"), [""])
sketch7.MapMode = "FlatFace"
sketch7.AttachmentOffset = App.Placement(V(0, 0, -1.5 * 25.4), App.Rotation())
sketch7.addGeometry(Part.LineSegment(V(1340, 2108, 0), V(1340, 2019, 0)), False)
sketch7.addGeometry(Part.LineSegment(V(1340, 2019, 0), V(1099, 2019, 0)), False)
sketch7.addGeometry(Part.LineSegment(V(1099, 2019, 0), V(1099, 2108, 0)), False)
sketch7.addGeometry(Part.LineSegment(V(1099, 2108, 0), V(1340, 2108, 0)), False)
sketch7.addConstraint(Sketcher.Constraint("Coincident", 0, 2, 1, 1))
sketch7.addConstraint(Sketcher.Constraint("Coincident", 1, 2, 2, 1))
sketch7.addConstraint(Sketcher.Constraint("Coincident", 2, 2, 3, 1))
sketch7.addConstraint(Sketcher.Constraint("Coincident", 3, 2, 0, 1))
sketch7.addConstraint(Sketcher.Constraint("Vertical", 0))
sketch7.addConstraint(Sketcher.Constraint("Horizontal", 1))
sketch7.addConstraint(Sketcher.Constraint("Vertical", 2))
sketch7.addConstraint(Sketcher.Constraint("Horizontal", 3))
sketch7.addConstraint(Sketcher.Constraint("DistanceX", 1, 2, 1, 1, Q("9.5 in")))
sketch7.addConstraint(Sketcher.Constraint("DistanceY", 0, 2, 0, 1, Q("3.5 in")))
sketch7.addConstraint(Sketcher.Constraint("DistanceY", -1, 1, 2, 2, Q("83 in")))
sketch7.addConstraint(Sketcher.Constraint("DistanceX", -1, 1, 0, 2, Q("52.75 in")))
sketch7.setExpression("Constraints[8]", "Params.sketch7_width")
sketch7.setExpression("Constraints[9]", "Params.sketch7_height")
pad7 = body.newObject("PartDesign::Pad", "Pad006")
pad7.Profile = sketch7
pad7.setExpression("Length", "Params.pad7_length")
pad7.Reversed = True

# Sketch on XZ plane
sketch8 = body.newObject("Sketcher::SketchObject", "Sketch007")
sketch8.AttachmentSupport = (doc.getObject("XZ_Plane"), [""])
sketch8.MapMode = "FlatFace"
sketch8.AttachmentOffset = App.Placement(V(0, 0, 25.5 * 25.4), App.Rotation())
sketch8.addGeometry(Part.LineSegment(V(1099, 2108, 0), V(1099, 2019, 0)), False)
sketch8.addGeometry(Part.LineSegment(V(1099, 2019, 0), V(1340, 2019, 0)), False)
sketch8.addGeometry(Part.LineSegment(V(1340, 2019, 0), V(1340, 2108, 0)), False)
sketch8.addGeometry(Part.LineSegment(V(1340, 2108, 0), V(1099, 2108, 0)), False)
sketch8.addConstraint(Sketcher.Constraint("Coincident", 0, 2, 1, 1))
sketch8.addConstraint(Sketcher.Constraint("Coincident", 1, 2, 2, 1))
sketch8.addConstraint(Sketcher.Constraint("Coincident", 2, 2, 3, 1))
sketch8.addConstraint(Sketcher.Constraint("Coincident", 3, 2, 0, 1))
sketch8.addConstraint(Sketcher.Constraint("Vertical", 0))
sketch8.addConstraint(Sketcher.Constraint("Horizontal", 1))
sketch8.addConstraint(Sketcher.Constraint("Vertical", 2))
sketch8.addConstraint(Sketcher.Constraint("Horizontal", 3))
sketch8.addConstraint(Sketcher.Constraint("DistanceX", 1, 1, 1, 2, Q("9.5 in")))
sketch8.addConstraint(Sketcher.Constraint("DistanceY", 0, 2, 0, 1, Q("3.5 in")))
sketch8.addConstraint(Sketcher.Constraint("DistanceY", -1, 1, 2, 2, Q("83 in")))
sketch8.addConstraint(Sketcher.Constraint("DistanceX", -1, 1, 0, 2, Q("43.25 in")))
sketch8.setExpression("Constraints[8]", "Params.sketch8_width")
sketch8.setExpression("Constraints[9]", "Params.sketch8_height")
pad8 = body.newObject("PartDesign::Pad", "Pad007")
pad8.Profile = sketch8
pad8.setExpression("Length", "Params.pad8_length")
body2 = doc.addObject("PartDesign::Body", "Body001")

# Sketch on XZ plane
sketch9 = body2.newObject("Sketcher::SketchObject", "Sketch008")
sketch9.AttachmentSupport = (doc.getObject("XZ_Plane001"), [""])
sketch9.MapMode = "FlatFace"
sketch9.AttachmentOffset = App.Placement(V(0, 0, 12 * 25.4), App.Rotation())
sketch9.addGeometry(Part.LineSegment(V(3141, 303, 0), V(926, 1879, 0)), False)
sketch9.addGeometry(Part.LineSegment(V(926, 1879, 0), V(1102, 1644, 0)), False)
sketch9.addGeometry(Part.LineSegment(V(1102, 1644, 0), V(3089, 231, 0)), False)
sketch9.addGeometry(Part.LineSegment(V(3089, 231, 0), V(3141, 303, 0)), False)
sketch9.addGeometry(Part.Circle(V(1964, 1086, 0), V(0, 0, 1), 25), False)
sketch9.addGeometry(Part.Circle(V(1219, 1616, 0), V(0, 0, 1), 25), False)
sketch9.addConstraint(Sketcher.Constraint("Coincident", 0, 2, 1, 1))
sketch9.addConstraint(Sketcher.Constraint("Coincident", 1, 2, 2, 1))
sketch9.addConstraint(Sketcher.Constraint("Coincident", 2, 2, 3, 1))
sketch9.addConstraint(Sketcher.Constraint("Coincident", 3, 2, 0, 1))
sketch9.addConstraint(Sketcher.Constraint("Equal", 4, 5))
sketch9.addConstraint(Sketcher.Constraint("Parallel", 0, 2))
sketch9.addConstraint(Sketcher.Constraint("Perpendicular", 2, 3))
sketch9.addConstraint(Sketcher.Constraint("Diameter", 4, Q("2 in")))
sketch9.addConstraint(Sketcher.Constraint("Distance", 0, Q("107 in")))
sketch9.addConstraint(Sketcher.Constraint("Distance", 2, Q("96 in")))
sketch9.addConstraint(Sketcher.Constraint("DistanceX", -1, 1, 5, 3, Q("48 in")))
sketch9.addConstraint(Sketcher.Constraint("Distance", 3, Q("3.5 in")))
sketch9.addConstraint(Sketcher.Constraint("DistanceY", -1, 1, 4, 3, Q("42.75 in")))
sketch9.addConstraint(Sketcher.Constraint("DistanceX", 4, 3, 3, 2, 1176.676999))
sketch9.addConstraint(Sketcher.Constraint("DistanceX", -1, 1, 1, 2, 1102.482021))
sketch9.addConstraint(Sketcher.Constraint("DistanceY", 5, 3, 1, 2, 28.476281))
sketch9.addConstraint(Sketcher.Constraint("DistanceX", 0, 2, 1, 2, 176.145148))
sketch9.addConstraint(Sketcher.Constraint("DistanceY", -1, 1, 5, 3, 1615.873706))
sketch9.setExpression("Constraints[7]", "Params.sketch9_diameter")
sketch9.setExpression("Constraints[8]", "Params.sketch9_length")
sketch9.setExpression("Constraints[9]", "Params.sketch9_length2")
sketch9.setExpression("Constraints[11]", "Params.sketch9_length3")
pad9 = body2.newObject("PartDesign::Pad", "Pad008")
pad9.Profile = sketch9
pad9.setExpression("Length", "Params.pad9_length")
pad9.Midplane = True
body3 = doc.addObject("PartDesign::Body", "Body002")

# Sketch on XZ plane
sketch10 = body3.newObject("Sketcher::SketchObject", "Sketch009")
sketch10.AttachmentSupport = (doc.getObject("XZ_Plane002"), [""])
sketch10.MapMode = "FlatFace"
sketch10.AttachmentOffset = App.Placement(V(0, 0, 12 * 25.4), App.Rotation())
sketch10.addGeometry(Part.Circle(V(1219, 1086, 0), V(0, 0, 1), 25), False)
sketch10.addConstraint(Sketcher.Constraint("Diameter", 0, Q("2 in")))
sketch10.addConstraint(Sketcher.Constraint("DistanceX", -1, 1, 0, 3, Q("48 in")))
sketch10.addConstraint(Sketcher.Constraint("DistanceY", -1, 1, 0, 3, Q("42.75 in")))
sketch10.setExpression("Constraints[0]", "Params.sketch10_diameter")
pad10 = body3.newObject("PartDesign::Pad", "Pad009")
pad10.Profile = sketch10
pad10.setExpression("Length", "Params.pad10_length")
pad10.Midplane = True
body4 = doc.addObject("PartDesign::Body", "Body003")

# Sketch on XZ plane
sketch11 = body4.newObject("Sketcher::SketchObject", "Sketch010")
sketch11.AttachmentSupport = (doc.getObject("XZ_Plane003"), [""])
sketch11.MapMode = "FlatFace"
sketch11.AttachmentOffset = App.Placement(V(0, 0, 12 * 25.4), App.Rotation())
sketch11.addGeometry(Part.Circle(V(1219, 171, 0), V(0, 0, 1), 25), False)
sketch11.addConstraint(Sketcher.Constraint("Diameter", 0, Q("2 in")))
sketch11.addConstraint(Sketcher.Constraint("DistanceX", -1, 1, 0, 3, Q("48 in")))
sketch11.addConstraint(Sketcher.Constraint("DistanceY", -1, 1, 0, 3, Q("6.75 in")))
sketch11.setExpression("Constraints[0]", "Params.sketch11_diameter")
pad11 = body4.newObject("PartDesign::Pad", "Pad010")
pad11.Profile = sketch11
pad11.setExpression("Length", "Params.pad11_length")
pad11.Midplane = True

doc.recompute()
